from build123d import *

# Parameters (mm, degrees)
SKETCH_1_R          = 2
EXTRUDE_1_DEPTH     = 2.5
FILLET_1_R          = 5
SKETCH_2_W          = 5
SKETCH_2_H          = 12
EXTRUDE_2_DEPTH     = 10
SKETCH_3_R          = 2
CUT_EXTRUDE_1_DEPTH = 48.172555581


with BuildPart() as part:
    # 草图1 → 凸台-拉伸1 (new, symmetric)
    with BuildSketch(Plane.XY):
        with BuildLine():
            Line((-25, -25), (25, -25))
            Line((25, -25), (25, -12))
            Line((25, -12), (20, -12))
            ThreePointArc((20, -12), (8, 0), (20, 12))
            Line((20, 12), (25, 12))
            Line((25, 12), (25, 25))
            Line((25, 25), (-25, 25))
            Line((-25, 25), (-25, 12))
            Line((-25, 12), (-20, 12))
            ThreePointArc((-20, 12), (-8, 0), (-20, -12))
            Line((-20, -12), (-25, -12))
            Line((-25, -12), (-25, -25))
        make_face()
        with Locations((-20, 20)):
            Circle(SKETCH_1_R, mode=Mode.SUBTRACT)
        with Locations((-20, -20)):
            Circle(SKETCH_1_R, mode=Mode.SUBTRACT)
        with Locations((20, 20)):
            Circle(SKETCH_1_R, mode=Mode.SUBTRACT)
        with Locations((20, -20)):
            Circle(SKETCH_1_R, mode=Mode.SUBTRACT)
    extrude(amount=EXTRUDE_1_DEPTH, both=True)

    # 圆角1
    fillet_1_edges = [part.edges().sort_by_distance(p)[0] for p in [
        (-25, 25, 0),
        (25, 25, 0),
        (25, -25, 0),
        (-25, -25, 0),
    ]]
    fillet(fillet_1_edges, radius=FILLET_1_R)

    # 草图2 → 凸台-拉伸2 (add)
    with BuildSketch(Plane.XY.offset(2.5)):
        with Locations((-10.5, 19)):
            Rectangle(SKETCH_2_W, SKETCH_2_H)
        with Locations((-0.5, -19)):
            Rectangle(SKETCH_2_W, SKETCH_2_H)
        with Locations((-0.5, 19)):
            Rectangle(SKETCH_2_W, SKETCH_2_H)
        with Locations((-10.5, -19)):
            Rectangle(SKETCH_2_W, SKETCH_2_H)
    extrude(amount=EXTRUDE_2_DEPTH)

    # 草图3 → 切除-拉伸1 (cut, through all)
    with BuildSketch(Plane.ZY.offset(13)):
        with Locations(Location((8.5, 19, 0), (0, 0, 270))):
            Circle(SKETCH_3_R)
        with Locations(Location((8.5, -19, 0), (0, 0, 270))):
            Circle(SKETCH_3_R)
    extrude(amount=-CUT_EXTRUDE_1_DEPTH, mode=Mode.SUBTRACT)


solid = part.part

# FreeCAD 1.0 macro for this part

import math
import FreeCAD as App
import Part
import Sketcher

V = App.Vector
Q = App.Units.Quantity


def edges_at(feature, points):
    """Names of the edges that pass closest to the given points."""
    edges = feature.Shape.Edges
    near = lambda p: min(range(len(edges)), key=lambda i: edges[i].distToShape(Part.Vertex(*p))[0])
    return sorted({f"Edge{near(p) + 1}" for p in points})

doc = App.newDocument("Part")
body = doc.addObject("PartDesign::Body", "Body")

# Sketch on XY plane
sketch1 = doc.addObject("Sketcher::SketchObject", "Sketch")
body.addObject(sketch1)
sketch1.AttachmentSupport = (doc.XY_Plane, [""])
sketch1.MapMode = "FlatFace"
sketch1.addGeometry(Part.LineSegment(V(-25, -25, 0), V(25, -25, 0)), False)
sketch1.addGeometry(Part.LineSegment(V(25, -25, 0), V(25, -12, 0)), False)
sketch1.addGeometry(Part.LineSegment(V(25, -12, 0), V(20, -12, 0)), False)
sketch1.addGeometry(Part.ArcOfCircle(Part.Circle(V(20, 0, 0), V(0, 0, 1), 12), math.radians(90), math.radians(270)), False)
sketch1.addGeometry(Part.LineSegment(V(20, 12, 0), V(25, 12, 0)), False)
sketch1.addGeometry(Part.LineSegment(V(25, 12, 0), V(25, 25, 0)), False)
sketch1.addGeometry(Part.LineSegment(V(25, 25, 0), V(-25, 25, 0)), False)
sketch1.addGeometry(Part.LineSegment(V(-25, 25, 0), V(-25, 12, 0)), False)
sketch1.addGeometry(Part.LineSegment(V(-25, 12, 0), V(-20, 12, 0)), False)
sketch1.addGeometry(Part.ArcOfCircle(Part.Circle(V(-20, 0, 0), V(0, 0, 1), 12), math.radians(-90), math.radians(90)), False)
sketch1.addGeometry(Part.LineSegment(V(-20, -12, 0), V(-25, -12, 0)), False)
sketch1.addGeometry(Part.LineSegment(V(-25, -12, 0), V(-25, -25, 0)), False)
sketch1.addGeometry(Part.Circle(V(-20, -20, 0), V(0, 0, 1), 2), False)
sketch1.addGeometry(Part.Circle(V(20, -20, 0), V(0, 0, 1), 2), False)
sketch1.addGeometry(Part.Circle(V(-20, 20, 0), V(0, 0, 1), 2), False)
sketch1.addGeometry(Part.Circle(V(20, 20, 0), V(0, 0, 1), 2), False)
sketch1.addConstraint(Sketcher.Constraint("Coincident", 0, 2, 1, 1))
sketch1.addConstraint(Sketcher.Constraint("Coincident", 1, 2, 2, 1))
sketch1.addConstraint(Sketcher.Constraint("Tangent", 2, 2, 3, 2))
sketch1.addConstraint(Sketcher.Constraint("Tangent", 3, 1, 4, 1))
sketch1.addConstraint(Sketcher.Constraint("Coincident", 4, 2, 5, 1))
sketch1.addConstraint(Sketcher.Constraint("Coincident", 5, 2, 6, 1))
sketch1.addConstraint(Sketcher.Constraint("Coincident", 6, 2, 7, 1))
sketch1.addConstraint(Sketcher.Constraint("Coincident", 7, 2, 8, 1))
sketch1.addConstraint(Sketcher.Constraint("Tangent", 8, 2, 9, 2))
sketch1.addConstraint(Sketcher.Constraint("Tangent", 9, 1, 10, 1))
sketch1.addConstraint(Sketcher.Constraint("Coincident", 10, 2, 11, 1))
sketch1.addConstraint(Sketcher.Constraint("Coincident", 11, 2, 0, 1))
sketch1.addConstraint(Sketcher.Constraint("Horizontal", 0))
sketch1.addConstraint(Sketcher.Constraint("Vertical", 1))
sketch1.addConstraint(Sketcher.Constraint("Horizontal", 2))
sketch1.addConstraint(Sketcher.Constraint("Horizontal", 4))
sketch1.addConstraint(Sketcher.Constraint("Vertical", 5))
sketch1.addConstraint(Sketcher.Constraint("Horizontal", 6))
sketch1.addConstraint(Sketcher.Constraint("Vertical", 7))
sketch1.addConstraint(Sketcher.Constraint("Horizontal", 8))
sketch1.addConstraint(Sketcher.Constraint("Horizontal", 10))
sketch1.addConstraint(Sketcher.Constraint("Vertical", 11))
sketch1.addConstraint(Sketcher.Constraint("Equal", 3, 9))
sketch1.addConstraint(Sketcher.Constraint("Equal", 12, 13))
sketch1.addConstraint(Sketcher.Constraint("Equal", 13, 14))
sketch1.addConstraint(Sketcher.Constraint("Equal", 14, 15))
sketch1.addConstraint(Sketcher.Constraint("Symmetric", 3, 3, 9, 3, -1, 1))
sketch1.addConstraint(Sketcher.Constraint("Symmetric", 13, 3, 14, 3, -1, 1))
sketch1.addConstraint(Sketcher.Constraint("Symmetric", 12, 3, 15, 3, -1, 1))
sketch1.addConstraint(Sketcher.Constraint("Symmetric", 0, 2, 6, 2, -1, 1))
sketch1.addConstraint(Sketcher.Constraint("Symmetric", 12, 3, 13, 3, -2))
sketch1.addConstraint(Sketcher.Constraint("Symmetric", 4, 2, 7, 2, -2))
sketch1.addConstraint(Sketcher.Constraint("Vertical", 9, 3, 12, 3))
sketch1.addConstraint(Sketcher.Constraint("Vertical", 7, 2, 10, 2))
sketch1.addConstraint(Sketcher.Constraint("Diameter", 12, Q("4 mm")))
sketch1.addConstraint(Sketcher.Constraint("Radius", 3, Q("12 mm")))
sketch1.addConstraint(Sketcher.Constraint("DistanceX", 0, 1, 0, 2, Q("50 mm")))
sketch1.addConstraint(Sketcher.Constraint("DistanceX", 2, 2, 2, 1, Q("5 mm")))
sketch1.addConstraint(Sketcher.Constraint("DistanceY", 1, 1, 1, 2, Q("13 mm")))
sketch1.addConstraint(Sketcher.Constraint("DistanceY", 12, 3, -1, 1, Q("20 mm")))
pad1 = doc.addObject("PartDesign::Pad", "Pad")
body.addObject(pad1)
pad1.Profile = sketch1
pad1.Length = 5
pad1.Midplane = True
doc.recompute()

fillet = doc.addObject("PartDesign::Fillet", "Fillet")
body.addObject(fillet)
fillet.Base = (pad1, edges_at(pad1, [
    (-25, 25, 0),
    (25, 25, 0),
    (25, -25, 0),
    (-25, -25, 0),
]))
fillet.Radius = 5

# Sketch on XY plane
sketch2 = doc.addObject("Sketcher::SketchObject", "Sketch001")
body.addObject(sketch2)
sketch2.AttachmentSupport = (doc.XY_Plane, [""])
sketch2.MapMode = "FlatFace"
sketch2.AttachmentOffset = App.Placement(V(0, 0, 2.5), App.Rotation())
sketch2.addGeometry(Part.LineSegment(V(-13, 25, 0), V(-13, 13, 0)), False)
sketch2.addGeometry(Part.LineSegment(V(-13, 13, 0), V(-8, 13, 0)), False)
sketch2.addGeometry(Part.LineSegment(V(-8, 13, 0), V(-8, 25, 0)), False)
sketch2.addGeometry(Part.LineSegment(V(-8, 25, 0), V(-13, 25, 0)), False)
sketch2.addGeometry(Part.LineSegment(V(-3, -13, 0), V(-3, -25, 0)), False)
sketch2.addGeometry(Part.LineSegment(V(-3, -25, 0), V(2, -25, 0)), False)
sketch2.addGeometry(Part.LineSegment(V(2, -25, 0), V(2, -13, 0)), False)
sketch2.addGeometry(Part.LineSegment(V(2, -13, 0), V(-3, -13, 0)), False)
sketch2.addGeometry(Part.LineSegment(V(-3, 25, 0), V(-3, 13, 0)), False)
sketch2.addGeometry(Part.LineSegment(V(-3, 13, 0), V(2, 13, 0)), False)
sketch2.addGeometry(Part.LineSegment(V(2, 13, 0), V(2, 25, 0)), False)
sketch2.addGeometry(Part.LineSegment(V(2, 25, 0), V(-3, 25, 0)), False)
sketch2.addGeometry(Part.LineSegment(V(-13, -13, 0), V(-13, -25, 0)), False)
sketch2.addGeometry(Part.LineSegment(V(-13, -25, 0), V(-8, -25, 0)), False)
sketch2.addGeometry(Part.LineSegment(V(-8, -25, 0), V(-8, -13, 0)), False)
sketch2.addGeometry(Part.LineSegment(V(-8, -13, 0), V(-13, -13, 0)), False)
sketch2.addConstraint(Sketcher.Constraint("Coincident", 0, 2, 1, 1))
sketch2.addConstraint(Sketcher.Constraint("Coincident", 1, 2, 2, 1))
sketch2.addConstraint(Sketcher.Constraint("Coincident", 2, 2, 3, 1))
sketch2.addConstraint(Sketcher.Constraint("Coincident", 3, 2, 0, 1))
sketch2.addConstraint(Sketcher.Constraint("Coincident", 4, 2, 5, 1))
sketch2.addConstraint(Sketcher.Constraint("Coincident", 5, 2, 6, 1))
sketch2.addConstraint(Sketcher.Constraint("Coincident", 6, 2, 7, 1))
sketch2.addConstraint(Sketcher.Constraint("Coincident", 7, 2, 4, 1))
sketch2.addConstraint(Sketcher.Constraint("Coincident", 8, 2, 9, 1))
sketch2.addConstraint(Sketcher.Constraint("Coincident", 9, 2, 10, 1))
sketch2.addConstraint(Sketcher.Constraint("Coincident", 10, 2, 11, 1))
sketch2.addConstraint(Sketcher.Constraint("Coincident", 11, 2, 8, 1))
sketch2.addConstraint(Sketcher.Constraint("Coincident", 12, 2, 13, 1))
sketch2.addConstraint(Sketcher.Constraint("Coincident", 13, 2, 14, 1))
sketch2.addConstraint(Sketcher.Constraint("Coincident", 14, 2, 15, 1))
sketch2.addConstraint(Sketcher.Constraint("Coincident", 15, 2, 12, 1))
sketch2.addConstraint(Sketcher.Constraint("Vertical", 0))
sketch2.addConstraint(Sketcher.Constraint("Horizontal", 1))
sketch2.addConstraint(Sketcher.Constraint("Vertical", 2))
sketch2.addConstraint(Sketcher.Constraint("Horizontal", 3))
sketch2.addConstraint(Sketcher.Constraint("Vertical", 4))
sketch2.addConstraint(Sketcher.Constraint("Horizontal", 5))
sketch2.addConstraint(Sketcher.Constraint("Vertical", 6))
sketch2.addConstraint(Sketcher.Constraint("Horizontal", 7))
sketch2.addConstraint(Sketcher.Constraint("Vertical", 8))
sketch2.addConstraint(Sketcher.Constraint("Horizontal", 9))
sketch2.addConstraint(Sketcher.Constraint("Vertical", 10))
sketch2.addConstraint(Sketcher.Constraint("Horizontal", 11))
sketch2.addConstraint(Sketcher.Constraint("Vertical", 12))
sketch2.addConstraint(Sketcher.Constraint("Horizontal", 13))
sketch2.addConstraint(Sketcher.Constraint("Vertical", 14))
sketch2.addConstraint(Sketcher.Constraint("Horizontal", 15))
sketch2.addConstraint(Sketcher.Constraint("Symmetric", 7, 2, 8, 2, -1))
sketch2.addConstraint(Sketcher.Constraint("Symmetric", 5, 2, 10, 2, -1))
sketch2.addConstraint(Sketcher.Constraint("Symmetric", 3, 2, 12, 2, -1))
sketch2.addConstraint(Sketcher.Constraint("Symmetric", 1, 2, 14, 2, -1))
sketch2.addConstraint(Sketcher.Constraint("Horizontal", 1, 2, 8, 2))
sketch2.addConstraint(Sketcher.Constraint("Horizontal", 3, 2, 10, 2))
sketch2.addConstraint(Sketcher.Constraint("Equal", 3, 5))
sketch2.addConstraint(Sketcher.Constraint("DistanceX", 1, 1, 1, 2, Q("5 mm")))
sketch2.addConstraint(Sketcher.Constraint("DistanceY", 0, 2, 0, 1, Q("12 mm")))
sketch2.addConstraint(Sketcher.Constraint("DistanceX", 0, 2, -1, 1, Q("13 mm")))
sketch2.addConstraint(Sketcher.Constraint("DistanceY", -1, 1, 0, 2, Q("13 mm")))
sketch2.addConstraint(Sketcher.Constraint("DistanceX", 4, 2, -1, 1, Q("3 mm")))
pad2 = doc.addObject("PartDesign::Pad", "Pad001")
body.addObject(pad2)
pad2.Profile = sketch2
pad2.Length = 10

# Sketch on YZ plane
sketch3 = doc.addObject("Sketcher::SketchObject", "Sketch002")
body.addObject(sketch3)
sketch3.AttachmentSupport = (doc.YZ_Plane, [""])
sketch3.MapMode = "FlatFace"
sketch3.AttachmentOffset = App.Placement(V(0, 0, -13), App.Rotation())
sketch3.addGeometry(Part.Circle(V(19, 8.5, 0), V(0, 0, 1), 2), False)
sketch3.addGeometry(Part.Circle(V(-19, 8.5, 0), V(0, 0, 1), 2), False)
sketch3.addConstraint(Sketcher.Constraint("Equal", 0, 1))
sketch3.addConstraint(Sketcher.Constraint("Symmetric", 0, 3, 1, 3, -2))
sketch3.addConstraint(Sketcher.Constraint("Diameter", 0, Q("4 mm")))
sketch3.addConstraint(Sketcher.Constraint("DistanceX", -1, 1, 0, 3, Q("19 mm")))
sketch3.addConstraint(Sketcher.Constraint("DistanceY", -1, 1, 0, 3, Q("8.5 mm")))
pocket1 = doc.addObject("PartDesign::Pocket", "Pocket")
body.addObject(pocket1)
pocket1.Profile = sketch3
pocket1.Type = "ThroughAll"
pocket1.Reversed = True

doc.recompute()
